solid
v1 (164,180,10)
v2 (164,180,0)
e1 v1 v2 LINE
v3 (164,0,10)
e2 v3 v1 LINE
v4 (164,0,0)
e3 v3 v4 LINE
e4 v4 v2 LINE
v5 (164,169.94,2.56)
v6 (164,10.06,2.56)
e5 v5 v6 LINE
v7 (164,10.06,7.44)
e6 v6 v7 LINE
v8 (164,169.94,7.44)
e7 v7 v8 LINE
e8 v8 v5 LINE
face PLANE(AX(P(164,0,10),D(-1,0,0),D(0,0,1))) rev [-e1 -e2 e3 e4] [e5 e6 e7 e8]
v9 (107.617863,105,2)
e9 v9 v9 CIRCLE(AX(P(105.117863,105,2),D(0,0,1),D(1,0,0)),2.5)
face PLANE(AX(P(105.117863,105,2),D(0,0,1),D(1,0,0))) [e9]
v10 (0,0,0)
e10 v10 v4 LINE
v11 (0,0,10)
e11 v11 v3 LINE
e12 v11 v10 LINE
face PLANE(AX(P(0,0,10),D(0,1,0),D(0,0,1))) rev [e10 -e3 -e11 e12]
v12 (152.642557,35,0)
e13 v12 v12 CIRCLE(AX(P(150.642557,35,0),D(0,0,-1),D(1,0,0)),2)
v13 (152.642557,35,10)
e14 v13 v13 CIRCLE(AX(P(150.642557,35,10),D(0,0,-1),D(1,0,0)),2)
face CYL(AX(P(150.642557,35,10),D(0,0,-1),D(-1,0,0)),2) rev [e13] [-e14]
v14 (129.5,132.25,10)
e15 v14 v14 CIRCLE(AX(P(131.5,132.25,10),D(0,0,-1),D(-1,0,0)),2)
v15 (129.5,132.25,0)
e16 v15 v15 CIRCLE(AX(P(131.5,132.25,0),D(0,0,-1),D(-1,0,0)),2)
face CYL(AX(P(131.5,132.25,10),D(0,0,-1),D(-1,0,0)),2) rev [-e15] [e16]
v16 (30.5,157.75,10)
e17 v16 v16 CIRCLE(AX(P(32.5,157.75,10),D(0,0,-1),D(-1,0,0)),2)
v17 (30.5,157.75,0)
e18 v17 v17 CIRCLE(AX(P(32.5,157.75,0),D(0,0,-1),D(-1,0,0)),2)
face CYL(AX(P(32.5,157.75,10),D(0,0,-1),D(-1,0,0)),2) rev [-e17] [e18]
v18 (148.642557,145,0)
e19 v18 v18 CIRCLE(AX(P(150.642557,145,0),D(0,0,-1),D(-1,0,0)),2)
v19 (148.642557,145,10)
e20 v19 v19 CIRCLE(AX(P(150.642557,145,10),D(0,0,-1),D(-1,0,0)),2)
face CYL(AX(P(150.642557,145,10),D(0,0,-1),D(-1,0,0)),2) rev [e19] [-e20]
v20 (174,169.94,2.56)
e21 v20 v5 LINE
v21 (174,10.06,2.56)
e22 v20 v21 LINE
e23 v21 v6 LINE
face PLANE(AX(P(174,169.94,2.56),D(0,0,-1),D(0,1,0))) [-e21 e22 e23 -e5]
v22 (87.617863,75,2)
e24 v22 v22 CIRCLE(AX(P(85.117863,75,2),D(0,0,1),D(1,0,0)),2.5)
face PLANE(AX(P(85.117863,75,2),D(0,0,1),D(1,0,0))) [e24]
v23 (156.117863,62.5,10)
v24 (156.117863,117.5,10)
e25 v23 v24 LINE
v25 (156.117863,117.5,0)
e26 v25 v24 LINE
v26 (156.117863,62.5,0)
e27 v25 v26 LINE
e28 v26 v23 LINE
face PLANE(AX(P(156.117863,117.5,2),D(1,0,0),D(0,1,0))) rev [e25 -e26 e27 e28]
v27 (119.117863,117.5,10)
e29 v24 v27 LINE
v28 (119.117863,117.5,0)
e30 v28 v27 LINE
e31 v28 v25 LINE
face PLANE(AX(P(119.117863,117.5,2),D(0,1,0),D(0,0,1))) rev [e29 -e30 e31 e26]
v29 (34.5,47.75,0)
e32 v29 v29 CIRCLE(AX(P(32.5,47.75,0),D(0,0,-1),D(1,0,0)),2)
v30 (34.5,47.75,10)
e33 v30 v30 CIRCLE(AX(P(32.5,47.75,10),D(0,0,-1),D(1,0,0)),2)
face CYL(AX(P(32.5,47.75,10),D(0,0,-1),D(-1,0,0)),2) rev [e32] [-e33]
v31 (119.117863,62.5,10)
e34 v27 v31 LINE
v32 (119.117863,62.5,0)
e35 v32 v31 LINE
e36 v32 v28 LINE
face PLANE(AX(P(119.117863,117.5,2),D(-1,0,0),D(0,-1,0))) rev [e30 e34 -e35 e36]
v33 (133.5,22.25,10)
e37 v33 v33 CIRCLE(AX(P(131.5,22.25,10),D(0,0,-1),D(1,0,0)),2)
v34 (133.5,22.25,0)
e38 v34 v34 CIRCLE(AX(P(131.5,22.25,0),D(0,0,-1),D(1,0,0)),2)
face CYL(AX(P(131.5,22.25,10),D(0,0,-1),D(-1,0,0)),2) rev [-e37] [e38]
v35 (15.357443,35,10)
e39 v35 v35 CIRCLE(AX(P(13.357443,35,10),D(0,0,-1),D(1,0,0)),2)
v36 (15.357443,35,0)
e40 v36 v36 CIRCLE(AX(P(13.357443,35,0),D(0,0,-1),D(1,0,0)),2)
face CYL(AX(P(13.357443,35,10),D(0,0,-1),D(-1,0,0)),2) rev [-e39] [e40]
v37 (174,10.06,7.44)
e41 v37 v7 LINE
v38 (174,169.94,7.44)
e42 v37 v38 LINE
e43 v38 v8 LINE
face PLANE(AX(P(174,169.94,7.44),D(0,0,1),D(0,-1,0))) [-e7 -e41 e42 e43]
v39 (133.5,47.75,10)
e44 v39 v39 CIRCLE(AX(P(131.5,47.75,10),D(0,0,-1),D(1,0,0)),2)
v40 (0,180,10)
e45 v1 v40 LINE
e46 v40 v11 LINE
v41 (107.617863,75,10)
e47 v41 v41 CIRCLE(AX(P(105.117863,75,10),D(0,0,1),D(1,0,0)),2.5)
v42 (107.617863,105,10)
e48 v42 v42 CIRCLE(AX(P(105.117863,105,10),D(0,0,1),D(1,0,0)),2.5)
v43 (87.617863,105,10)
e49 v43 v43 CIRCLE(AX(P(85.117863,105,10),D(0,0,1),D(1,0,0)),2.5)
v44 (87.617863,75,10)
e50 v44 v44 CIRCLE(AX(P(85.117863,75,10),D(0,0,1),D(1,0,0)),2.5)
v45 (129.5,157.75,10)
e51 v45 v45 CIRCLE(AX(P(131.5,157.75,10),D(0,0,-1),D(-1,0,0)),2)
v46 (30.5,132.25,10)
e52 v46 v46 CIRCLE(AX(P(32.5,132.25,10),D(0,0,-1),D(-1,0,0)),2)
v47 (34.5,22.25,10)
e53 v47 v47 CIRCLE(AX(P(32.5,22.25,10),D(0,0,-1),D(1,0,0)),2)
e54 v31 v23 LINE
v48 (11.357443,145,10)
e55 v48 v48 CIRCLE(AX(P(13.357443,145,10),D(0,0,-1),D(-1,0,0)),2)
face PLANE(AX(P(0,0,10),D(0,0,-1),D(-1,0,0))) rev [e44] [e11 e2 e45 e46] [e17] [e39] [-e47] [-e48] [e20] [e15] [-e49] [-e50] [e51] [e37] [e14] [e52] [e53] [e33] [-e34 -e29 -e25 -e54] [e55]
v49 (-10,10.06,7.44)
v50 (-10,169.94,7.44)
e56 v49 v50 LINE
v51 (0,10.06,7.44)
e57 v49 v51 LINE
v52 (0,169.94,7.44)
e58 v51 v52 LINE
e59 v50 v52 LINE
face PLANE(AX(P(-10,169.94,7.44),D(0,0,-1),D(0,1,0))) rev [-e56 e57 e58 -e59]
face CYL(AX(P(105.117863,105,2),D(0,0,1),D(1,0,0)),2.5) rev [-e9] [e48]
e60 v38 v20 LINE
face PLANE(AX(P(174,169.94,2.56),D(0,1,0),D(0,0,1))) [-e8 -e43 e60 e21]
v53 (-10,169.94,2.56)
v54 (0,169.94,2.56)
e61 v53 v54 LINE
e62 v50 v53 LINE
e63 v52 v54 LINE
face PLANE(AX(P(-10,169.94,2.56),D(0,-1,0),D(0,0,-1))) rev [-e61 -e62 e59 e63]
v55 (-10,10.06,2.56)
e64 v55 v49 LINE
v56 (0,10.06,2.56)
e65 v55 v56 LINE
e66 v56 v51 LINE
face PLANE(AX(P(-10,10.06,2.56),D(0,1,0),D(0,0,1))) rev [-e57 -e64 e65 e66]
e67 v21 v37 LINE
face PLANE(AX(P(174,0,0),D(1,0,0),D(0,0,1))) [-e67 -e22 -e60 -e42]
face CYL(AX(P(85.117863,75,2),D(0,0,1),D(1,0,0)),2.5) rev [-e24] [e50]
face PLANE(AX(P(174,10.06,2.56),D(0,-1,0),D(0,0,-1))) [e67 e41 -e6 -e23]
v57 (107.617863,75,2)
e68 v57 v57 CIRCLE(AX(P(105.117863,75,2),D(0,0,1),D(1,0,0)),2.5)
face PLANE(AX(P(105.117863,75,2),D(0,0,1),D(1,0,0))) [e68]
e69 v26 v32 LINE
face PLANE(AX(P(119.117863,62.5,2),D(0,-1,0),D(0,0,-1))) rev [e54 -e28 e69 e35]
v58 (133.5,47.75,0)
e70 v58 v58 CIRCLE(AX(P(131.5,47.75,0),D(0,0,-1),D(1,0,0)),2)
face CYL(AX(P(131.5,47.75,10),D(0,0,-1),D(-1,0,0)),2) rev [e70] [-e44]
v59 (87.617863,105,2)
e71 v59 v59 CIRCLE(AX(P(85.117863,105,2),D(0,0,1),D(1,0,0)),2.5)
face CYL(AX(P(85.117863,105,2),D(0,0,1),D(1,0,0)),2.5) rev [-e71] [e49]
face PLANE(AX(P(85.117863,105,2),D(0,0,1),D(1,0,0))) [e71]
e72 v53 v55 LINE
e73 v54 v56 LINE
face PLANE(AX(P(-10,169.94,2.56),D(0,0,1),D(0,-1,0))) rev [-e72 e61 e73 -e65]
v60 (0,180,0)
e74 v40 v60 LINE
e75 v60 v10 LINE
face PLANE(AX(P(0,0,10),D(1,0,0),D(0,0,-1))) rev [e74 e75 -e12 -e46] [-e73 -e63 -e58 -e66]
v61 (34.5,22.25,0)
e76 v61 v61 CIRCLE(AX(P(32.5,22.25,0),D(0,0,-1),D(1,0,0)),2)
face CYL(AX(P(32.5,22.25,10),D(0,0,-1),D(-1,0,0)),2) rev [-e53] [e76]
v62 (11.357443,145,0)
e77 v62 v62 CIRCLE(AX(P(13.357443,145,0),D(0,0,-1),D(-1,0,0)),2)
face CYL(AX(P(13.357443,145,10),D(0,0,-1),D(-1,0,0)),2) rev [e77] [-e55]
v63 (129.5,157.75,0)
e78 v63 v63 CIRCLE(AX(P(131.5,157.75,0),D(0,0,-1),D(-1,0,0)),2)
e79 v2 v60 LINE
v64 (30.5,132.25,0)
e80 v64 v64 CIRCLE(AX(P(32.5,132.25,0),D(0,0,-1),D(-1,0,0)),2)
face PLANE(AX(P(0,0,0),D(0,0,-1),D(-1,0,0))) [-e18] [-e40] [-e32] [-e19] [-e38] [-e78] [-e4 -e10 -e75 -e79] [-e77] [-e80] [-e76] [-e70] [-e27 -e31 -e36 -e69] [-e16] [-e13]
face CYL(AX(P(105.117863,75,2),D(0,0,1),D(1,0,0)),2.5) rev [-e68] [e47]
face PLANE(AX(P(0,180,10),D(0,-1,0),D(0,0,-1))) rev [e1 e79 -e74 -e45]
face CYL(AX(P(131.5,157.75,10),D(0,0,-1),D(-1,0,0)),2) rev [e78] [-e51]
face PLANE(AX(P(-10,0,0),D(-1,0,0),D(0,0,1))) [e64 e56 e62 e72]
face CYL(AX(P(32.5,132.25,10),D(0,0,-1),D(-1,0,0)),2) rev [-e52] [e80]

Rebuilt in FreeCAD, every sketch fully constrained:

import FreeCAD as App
import Part
import Sketcher

V = App.Vector

doc = App.newDocument("Part")
body = doc.addObject("PartDesign::Body", "Body")

sketch1 = body.newObject("Sketcher::SketchObject", "Sketch")
sketch1.AttachmentSupport = (doc.getObject("XY_Plane"), [""])
sketch1.MapMode = "FlatFace"
sketch1.addGeometry(Part.LineSegment(V(0, 180, 0), V(0, 0, 0)), False)
sketch1.addGeometry(Part.LineSegment(V(0, 0, 0), V(164, 0, 0)), False)
sketch1.addGeometry(Part.LineSegment(V(164, 0, 0), V(164, 180, 0)), False)
sketch1.addGeometry(Part.LineSegment(V(164, 180, 0), V(0, 180, 0)), False)
sketch1.addConstraint(Sketcher.Constraint("Coincident", 0, 2, 1, 1))
sketch1.addConstraint(Sketcher.Constraint("Coincident", 1, 2, 2, 1))
sketch1.addConstraint(Sketcher.Constraint("Coincident", 2, 2, 3, 1))
sketch1.addConstraint(Sketcher.Constraint("Coincident", 3, 2, 0, 1))
sketch1.addConstraint(Sketcher.Constraint("Vertical", 0))
sketch1.addConstraint(Sketcher.Constraint("Horizontal", 1))
sketch1.addConstraint(Sketcher.Constraint("Vertical", 2))
sketch1.addConstraint(Sketcher.Constraint("Horizontal", 3))
sketch1.addConstraint(Sketcher.Constraint("Coincident", 0, 2, -1, 1))
sketch1.addConstraint(Sketcher.Constraint("DistanceX", 1, 1, 1, 2, 164.0))
sketch1.addConstraint(Sketcher.Constraint("DistanceY", 0, 2, 0, 1, 180.0))
pad1 = body.newObject("PartDesign::Pad", "Pad")
pad1.Profile = sketch1
pad1.Length = 10

sketch2 = body.newObject("Sketcher::SketchObject", "Sketch001")
sketch2.AttachmentSupport = (doc.getObject("YZ_Plane"), [""])
sketch2.MapMode = "FlatFace"
sketch2.addGeometry(Part.LineSegment(V(169.94, 2.56, 0), V(10.06, 2.56, 0)), False)
sketch2.addGeometry(Part.LineSegment(V(10.06, 2.56, 0), V(10.06, 7.44, 0)), False)
sketch2.addGeometry(Part.LineSegment(V(10.06, 7.44, 0), V(169.94, 7.44, 0)), False)
sketch2.addGeometry(Part.LineSegment(V(169.94, 7.44, 0), V(169.94, 2.56, 0)), False)
sketch2.addConstraint(Sketcher.Constraint("Coincident", 0, 2, 1, 1))
sketch2.addConstraint(Sketcher.Constraint("Coincident", 1, 2, 2, 1))
sketch2.addConstraint(Sketcher.Constraint("Coincident", 2, 2, 3, 1))
sketch2.addConstraint(Sketcher.Constraint("Coincident", 3, 2, 0, 1))
sketch2.addConstraint(Sketcher.Constraint("Horizontal", 0))
sketch2.addConstraint(Sketcher.Constraint("Vertical", 1))
sketch2.addConstraint(Sketcher.Constraint("Horizontal", 2))
sketch2.addConstraint(Sketcher.Constraint("Vertical", 3))
sketch2.addConstraint(Sketcher.Constraint("DistanceX", 0, 2, 0, 1, 159.88))
sketch2.addConstraint(Sketcher.Constraint("DistanceY", 1, 1, 1, 2, 4.88))
sketch2.addConstraint(Sketcher.Constraint("DistanceX", -1, 1, 0, 2, 10.06))
sketch2.addConstraint(Sketcher.Constraint("DistanceY", -1, 1, 0, 2, 2.56))
pad2 = body.newObject("PartDesign::Pad", "Pad001")
pad2.Profile = sketch2
pad2.Length = 10
pad2.Reversed = True
doc.recompute()

datumplane = body.newObject("PartDesign::Plane", "DatumPlane")
datumplane.AttachmentSupport = (doc.getObject("YZ_Plane"), [""])
datumplane.MapMode = "FlatFace"
datumplane.AttachmentOffset = App.Placement(V(0, 0, 82), App.Rotation())
mirrored = body.newObject("PartDesign::Mirrored", "Mirrored")
mirrored.Originals = [pad2]
mirrored.MirrorPlane = (datumplane, [""])
body.Tip = mirrored

sketch3 = body.newObject("Sketcher::SketchObject", "Sketch002")
sketch3.AttachmentSupport = (doc.getObject("XY_Plane"), [""])
sketch3.MapMode = "FlatFace"
sketch3.addGeometry(Part.Circle(V(150.642557, 145, 0), V(0, 0, 1), 2), False)
sketch3.addGeometry(Part.Circle(V(131.5, 157.75, 0), V(0, 0, 1), 2), False)
sketch3.addGeometry(Part.Circle(V(131.5, 132.25, 0), V(0, 0, 1), 2), False)
sketch3.addGeometry(Part.Circle(V(13.357443, 145, 0), V(0, 0, 1), 2), False)
sketch3.addGeometry(Part.Circle(V(32.5, 157.75, 0), V(0, 0, 1), 2), False)
sketch3.addGeometry(Part.Circle(V(32.5, 132.25, 0), V(0, 0, 1), 2), False)
sketch3.addGeometry(Part.Circle(V(131.5, 47.75, 0), V(0, 0, 1), 2), False)
sketch3.addGeometry(Part.Circle(V(131.5, 22.25, 0), V(0, 0, 1), 2), False)
sketch3.addGeometry(Part.Circle(V(150.642557, 35, 0), V(0, 0, 1), 2), False)
sketch3.addGeometry(Part.Circle(V(32.5, 47.75, 0), V(0, 0, 1), 2), False)
sketch3.addGeometry(Part.Circle(V(32.5, 22.25, 0), V(0, 0, 1), 2), False)
sketch3.addGeometry(Part.Circle(V(13.357443, 35, 0), V(0, 0, 1), 2), False)
sketch3.addConstraint(Sketcher.Constraint("Equal", 0, 1))
sketch3.addConstraint(Sketcher.Constraint("Equal", 1, 2))
sketch3.addConstraint(Sketcher.Constraint("Equal", 2, 3))
sketch3.addConstraint(Sketcher.Constraint("Equal", 3, 4))
sketch3.addConstraint(Sketcher.Constraint("Equal", 4, 5))
sketch3.addConstraint(Sketcher.Constraint("Equal", 5, 6))
sketch3.addConstraint(Sketcher.Constraint("Equal", 6, 7))
sketch3.addConstraint(Sketcher.Constraint("Equal", 7, 8))
sketch3.addConstraint(Sketcher.Constraint("Equal", 8, 9))
sketch3.addConstraint(Sketcher.Constraint("Equal", 9, 10))
sketch3.addConstraint(Sketcher.Constraint("Equal", 10, 11))
sketch3.addConstraint(Sketcher.Constraint("Horizontal", 0, 3, 3, 3))
sketch3.addConstraint(Sketcher.Constraint("Horizontal", 1, 3, 4, 3))
sketch3.addConstraint(Sketcher.Constraint("Horizontal", 2, 3, 5, 3))
sketch3.addConstraint(Sketcher.Constraint("Horizontal", 6, 3, 9, 3))
sketch3.addConstraint(Sketcher.Constraint("Horizontal", 7, 3, 10, 3))
sketch3.addConstraint(Sketcher.Constraint("Horizontal", 8, 3, 11, 3))
sketch3.addConstraint(Sketcher.Constraint("Vertical", 1, 3, 2, 3))
sketch3.addConstraint(Sketcher.Constraint("Vertical", 4, 3, 5, 3))
sketch3.addConstraint(Sketcher.Constraint("Vertical", 2, 3, 6, 3))
sketch3.addConstraint(Sketcher.Constraint("Vertical", 6, 3, 7, 3))
sketch3.addConstraint(Sketcher.Constraint("Vertical", 0, 3, 8, 3))
sketch3.addConstraint(Sketcher.Constraint("Vertical", 5, 3, 9, 3))
sketch3.addConstraint(Sketcher.Constraint("Vertical", 9, 3, 10, 3))
sketch3.addConstraint(Sketcher.Constraint("Vertical", 3, 3, 11, 3))
sketch3.addConstraint(Sketcher.Constraint("Diameter", 0, 4.0))
sketch3.addConstraint(Sketcher.Constraint("DistanceY", -1, 1, 0, 3, 145.0))
sketch3.addConstraint(Sketcher.Constraint("DistanceY", -1, 1, 8, 3, 35.0))
sketch3.addConstraint(Sketcher.Constraint("DistanceX", 4, 3, 1, 3, 99.0))
sketch3.addConstraint(Sketcher.Constraint("DistanceY", 6, 3, 1, 3, 110.0))
sketch3.addConstraint(Sketcher.Constraint("DistanceY", 7, 3, 2, 3, 110.0))
sketch3.addConstraint(Sketcher.Constraint("DistanceX", -1, 1, 1, 3, 131.5))
sketch3.addConstraint(Sketcher.Constraint("DistanceY", 2, 3, 1, 3, 25.5))
sketch3.addConstraint(Sketcher.Constraint("DistanceY", -1, 1, 1, 3, 157.75))
sketch3.addConstraint(Sketcher.Constraint("DistanceX", -1, 1, 0, 3, 150.642557))
sketch3.addConstraint(Sketcher.Constraint("DistanceX", -1, 1, 3, 3, 13.357443))
pocket1 = body.newObject("PartDesign::Pocket", "Pocket")
pocket1.Profile = sketch3
pocket1.Length = 10
pocket1.Reversed = True

sketch4 = body.newObject("Sketcher::SketchObject", "Sketch003")
sketch4.AttachmentSupport = (doc.getObject("XY_Plane"), [""])
sketch4.MapMode = "FlatFace"
sketch4.AttachmentOffset = App.Placement(V(0, 0, 10), App.Rotation())
sketch4.addGeometry(Part.Circle(V(85.117863, 105, 0), V(0, 0, 1), 2.5), False)
sketch4.addGeometry(Part.Circle(V(85.117863, 75, 0), V(0, 0, 1), 2.5), False)
sketch4.addGeometry(Part.Circle(V(105.117863, 105, 0), V(0, 0, 1), 2.5), False)
sketch4.addGeometry(Part.Circle(V(105.117863, 75, 0), V(0, 0, 1), 2.5), False)
sketch4.addGeometry(Part.LineSegment(V(119.117863, 117.5, 0), V(119.117863, 62.5, 0)), False)
sketch4.addGeometry(Part.LineSegment(V(119.117863, 62.5, 0), V(156.117863, 62.5, 0)), False)
sketch4.addGeometry(Part.LineSegment(V(156.117863, 62.5, 0), V(156.117863, 117.5, 0)), False)
sketch4.addGeometry(Part.LineSegment(V(156.117863, 117.5, 0), V(119.117863, 117.5, 0)), False)
sketch4.addConstraint(Sketcher.Constraint("Coincident", 4, 2, 5, 1))
sketch4.addConstraint(Sketcher.Constraint("Coincident", 5, 2, 6, 1))
sketch4.addConstraint(Sketcher.Constraint("Coincident", 6, 2, 7, 1))
sketch4.addConstraint(Sketcher.Constraint("Coincident", 7, 2, 4, 1))
sketch4.addConstraint(Sketcher.Constraint("Vertical", 4))
sketch4.addConstraint(Sketcher.Constraint("Horizontal", 5))
sketch4.addConstraint(Sketcher.Constraint("Vertical", 6))
sketch4.addConstraint(Sketcher.Constraint("Horizontal", 7))
sketch4.addConstraint(Sketcher.Constraint("Equal", 0, 1))
sketch4.addConstraint(Sketcher.Constraint("Equal", 1, 2))
sketch4.addConstraint(Sketcher.Constraint("Equal", 2, 3))
sketch4.addConstraint(Sketcher.Constraint("Horizontal", 0, 3, 2, 3))
sketch4.addConstraint(Sketcher.Constraint("Horizontal", 1, 3, 3, 3))
sketch4.addConstraint(Sketcher.Constraint("Vertical", 0, 3, 1, 3))
sketch4.addConstraint(Sketcher.Constraint("Vertical", 2, 3, 3, 3))
sketch4.addConstraint(Sketcher.Constraint("Diameter", 0, 5.0))
sketch4.addConstraint(Sketcher.Constraint("DistanceX", 5, 1, 5, 2, 37.0))
sketch4.addConstraint(Sketcher.Constraint("DistanceY", 4, 2, 4, 1, 55.0))
sketch4.addConstraint(Sketcher.Constraint("DistanceY", -1, 1, 0, 3, 105.0))
sketch4.addConstraint(Sketcher.Constraint("DistanceY", -1, 1, 1, 3, 75.0))
sketch4.addConstraint(Sketcher.Constraint("DistanceX", 0, 3, 2, 3, 20.0))
sketch4.addConstraint(Sketcher.Constraint("DistanceX", 3, 3, 4, 2, 14.0))
sketch4.addConstraint(Sketcher.Constraint("DistanceY", -1, 1, 4, 2, 62.5))
sketch4.addConstraint(Sketcher.Constraint("DistanceX", -1, 1, 0, 3, 85.117863))
pocket2 = body.newObject("PartDesign::Pocket", "Pocket001")
pocket2.Profile = sketch4
pocket2.Length = 8

sketch5 = body.newObject("Sketcher::SketchObject", "Sketch004")
sketch5.AttachmentSupport = (doc.getObject("XY_Plane"), [""])
sketch5.MapMode = "FlatFace"
sketch5.AttachmentOffset = App.Placement(V(0, 0, 2), App.Rotation())
sketch5.addGeometry(Part.LineSegment(V(119.117863, 117.5, 0), V(119.117863, 62.5, 0)), False)
sketch5.addGeometry(Part.LineSegment(V(119.117863, 62.5, 0), V(156.117863, 62.5, 0)), False)
sketch5.addGeometry(Part.LineSegment(V(156.117863, 62.5, 0), V(156.117863, 117.5, 0)), False)
sketch5.addGeometry(Part.LineSegment(V(156.117863, 117.5, 0), V(119.117863, 117.5, 0)), False)
sketch5.addConstraint(Sketcher.Constraint("Coincident", 0, 2, 1, 1))
sketch5.addConstraint(Sketcher.Constraint("Coincident", 1, 2, 2, 1))
sketch5.addConstraint(Sketcher.Constraint("Coincident", 2, 2, 3, 1))
sketch5.addConstraint(Sketcher.Constraint("Coincident", 3, 2, 0, 1))
sketch5.addConstraint(Sketcher.Constraint("Vertical", 0))
sketch5.addConstraint(Sketcher.Constraint("Horizontal", 1))
sketch5.addConstraint(Sketcher.Constraint("Vertical", 2))
sketch5.addConstraint(Sketcher.Constraint("Horizontal", 3))
sketch5.addConstraint(Sketcher.Constraint("DistanceX", 1, 1, 1, 2, 37.0))
sketch5.addConstraint(Sketcher.Constraint("DistanceY", 0, 2, 0, 1, 55.0))
sketch5.addConstraint(Sketcher.Constraint("DistanceY", -1, 1, 0, 2, 62.5))
sketch5.addConstraint(Sketcher.Constraint("DistanceX", -1, 1, 0, 2, 119.117863))
pocket3 = body.newObject("PartDesign::Pocket", "Pocket002")
pocket3.Profile = sketch5
pocket3.Length = 8

doc.recompute()
